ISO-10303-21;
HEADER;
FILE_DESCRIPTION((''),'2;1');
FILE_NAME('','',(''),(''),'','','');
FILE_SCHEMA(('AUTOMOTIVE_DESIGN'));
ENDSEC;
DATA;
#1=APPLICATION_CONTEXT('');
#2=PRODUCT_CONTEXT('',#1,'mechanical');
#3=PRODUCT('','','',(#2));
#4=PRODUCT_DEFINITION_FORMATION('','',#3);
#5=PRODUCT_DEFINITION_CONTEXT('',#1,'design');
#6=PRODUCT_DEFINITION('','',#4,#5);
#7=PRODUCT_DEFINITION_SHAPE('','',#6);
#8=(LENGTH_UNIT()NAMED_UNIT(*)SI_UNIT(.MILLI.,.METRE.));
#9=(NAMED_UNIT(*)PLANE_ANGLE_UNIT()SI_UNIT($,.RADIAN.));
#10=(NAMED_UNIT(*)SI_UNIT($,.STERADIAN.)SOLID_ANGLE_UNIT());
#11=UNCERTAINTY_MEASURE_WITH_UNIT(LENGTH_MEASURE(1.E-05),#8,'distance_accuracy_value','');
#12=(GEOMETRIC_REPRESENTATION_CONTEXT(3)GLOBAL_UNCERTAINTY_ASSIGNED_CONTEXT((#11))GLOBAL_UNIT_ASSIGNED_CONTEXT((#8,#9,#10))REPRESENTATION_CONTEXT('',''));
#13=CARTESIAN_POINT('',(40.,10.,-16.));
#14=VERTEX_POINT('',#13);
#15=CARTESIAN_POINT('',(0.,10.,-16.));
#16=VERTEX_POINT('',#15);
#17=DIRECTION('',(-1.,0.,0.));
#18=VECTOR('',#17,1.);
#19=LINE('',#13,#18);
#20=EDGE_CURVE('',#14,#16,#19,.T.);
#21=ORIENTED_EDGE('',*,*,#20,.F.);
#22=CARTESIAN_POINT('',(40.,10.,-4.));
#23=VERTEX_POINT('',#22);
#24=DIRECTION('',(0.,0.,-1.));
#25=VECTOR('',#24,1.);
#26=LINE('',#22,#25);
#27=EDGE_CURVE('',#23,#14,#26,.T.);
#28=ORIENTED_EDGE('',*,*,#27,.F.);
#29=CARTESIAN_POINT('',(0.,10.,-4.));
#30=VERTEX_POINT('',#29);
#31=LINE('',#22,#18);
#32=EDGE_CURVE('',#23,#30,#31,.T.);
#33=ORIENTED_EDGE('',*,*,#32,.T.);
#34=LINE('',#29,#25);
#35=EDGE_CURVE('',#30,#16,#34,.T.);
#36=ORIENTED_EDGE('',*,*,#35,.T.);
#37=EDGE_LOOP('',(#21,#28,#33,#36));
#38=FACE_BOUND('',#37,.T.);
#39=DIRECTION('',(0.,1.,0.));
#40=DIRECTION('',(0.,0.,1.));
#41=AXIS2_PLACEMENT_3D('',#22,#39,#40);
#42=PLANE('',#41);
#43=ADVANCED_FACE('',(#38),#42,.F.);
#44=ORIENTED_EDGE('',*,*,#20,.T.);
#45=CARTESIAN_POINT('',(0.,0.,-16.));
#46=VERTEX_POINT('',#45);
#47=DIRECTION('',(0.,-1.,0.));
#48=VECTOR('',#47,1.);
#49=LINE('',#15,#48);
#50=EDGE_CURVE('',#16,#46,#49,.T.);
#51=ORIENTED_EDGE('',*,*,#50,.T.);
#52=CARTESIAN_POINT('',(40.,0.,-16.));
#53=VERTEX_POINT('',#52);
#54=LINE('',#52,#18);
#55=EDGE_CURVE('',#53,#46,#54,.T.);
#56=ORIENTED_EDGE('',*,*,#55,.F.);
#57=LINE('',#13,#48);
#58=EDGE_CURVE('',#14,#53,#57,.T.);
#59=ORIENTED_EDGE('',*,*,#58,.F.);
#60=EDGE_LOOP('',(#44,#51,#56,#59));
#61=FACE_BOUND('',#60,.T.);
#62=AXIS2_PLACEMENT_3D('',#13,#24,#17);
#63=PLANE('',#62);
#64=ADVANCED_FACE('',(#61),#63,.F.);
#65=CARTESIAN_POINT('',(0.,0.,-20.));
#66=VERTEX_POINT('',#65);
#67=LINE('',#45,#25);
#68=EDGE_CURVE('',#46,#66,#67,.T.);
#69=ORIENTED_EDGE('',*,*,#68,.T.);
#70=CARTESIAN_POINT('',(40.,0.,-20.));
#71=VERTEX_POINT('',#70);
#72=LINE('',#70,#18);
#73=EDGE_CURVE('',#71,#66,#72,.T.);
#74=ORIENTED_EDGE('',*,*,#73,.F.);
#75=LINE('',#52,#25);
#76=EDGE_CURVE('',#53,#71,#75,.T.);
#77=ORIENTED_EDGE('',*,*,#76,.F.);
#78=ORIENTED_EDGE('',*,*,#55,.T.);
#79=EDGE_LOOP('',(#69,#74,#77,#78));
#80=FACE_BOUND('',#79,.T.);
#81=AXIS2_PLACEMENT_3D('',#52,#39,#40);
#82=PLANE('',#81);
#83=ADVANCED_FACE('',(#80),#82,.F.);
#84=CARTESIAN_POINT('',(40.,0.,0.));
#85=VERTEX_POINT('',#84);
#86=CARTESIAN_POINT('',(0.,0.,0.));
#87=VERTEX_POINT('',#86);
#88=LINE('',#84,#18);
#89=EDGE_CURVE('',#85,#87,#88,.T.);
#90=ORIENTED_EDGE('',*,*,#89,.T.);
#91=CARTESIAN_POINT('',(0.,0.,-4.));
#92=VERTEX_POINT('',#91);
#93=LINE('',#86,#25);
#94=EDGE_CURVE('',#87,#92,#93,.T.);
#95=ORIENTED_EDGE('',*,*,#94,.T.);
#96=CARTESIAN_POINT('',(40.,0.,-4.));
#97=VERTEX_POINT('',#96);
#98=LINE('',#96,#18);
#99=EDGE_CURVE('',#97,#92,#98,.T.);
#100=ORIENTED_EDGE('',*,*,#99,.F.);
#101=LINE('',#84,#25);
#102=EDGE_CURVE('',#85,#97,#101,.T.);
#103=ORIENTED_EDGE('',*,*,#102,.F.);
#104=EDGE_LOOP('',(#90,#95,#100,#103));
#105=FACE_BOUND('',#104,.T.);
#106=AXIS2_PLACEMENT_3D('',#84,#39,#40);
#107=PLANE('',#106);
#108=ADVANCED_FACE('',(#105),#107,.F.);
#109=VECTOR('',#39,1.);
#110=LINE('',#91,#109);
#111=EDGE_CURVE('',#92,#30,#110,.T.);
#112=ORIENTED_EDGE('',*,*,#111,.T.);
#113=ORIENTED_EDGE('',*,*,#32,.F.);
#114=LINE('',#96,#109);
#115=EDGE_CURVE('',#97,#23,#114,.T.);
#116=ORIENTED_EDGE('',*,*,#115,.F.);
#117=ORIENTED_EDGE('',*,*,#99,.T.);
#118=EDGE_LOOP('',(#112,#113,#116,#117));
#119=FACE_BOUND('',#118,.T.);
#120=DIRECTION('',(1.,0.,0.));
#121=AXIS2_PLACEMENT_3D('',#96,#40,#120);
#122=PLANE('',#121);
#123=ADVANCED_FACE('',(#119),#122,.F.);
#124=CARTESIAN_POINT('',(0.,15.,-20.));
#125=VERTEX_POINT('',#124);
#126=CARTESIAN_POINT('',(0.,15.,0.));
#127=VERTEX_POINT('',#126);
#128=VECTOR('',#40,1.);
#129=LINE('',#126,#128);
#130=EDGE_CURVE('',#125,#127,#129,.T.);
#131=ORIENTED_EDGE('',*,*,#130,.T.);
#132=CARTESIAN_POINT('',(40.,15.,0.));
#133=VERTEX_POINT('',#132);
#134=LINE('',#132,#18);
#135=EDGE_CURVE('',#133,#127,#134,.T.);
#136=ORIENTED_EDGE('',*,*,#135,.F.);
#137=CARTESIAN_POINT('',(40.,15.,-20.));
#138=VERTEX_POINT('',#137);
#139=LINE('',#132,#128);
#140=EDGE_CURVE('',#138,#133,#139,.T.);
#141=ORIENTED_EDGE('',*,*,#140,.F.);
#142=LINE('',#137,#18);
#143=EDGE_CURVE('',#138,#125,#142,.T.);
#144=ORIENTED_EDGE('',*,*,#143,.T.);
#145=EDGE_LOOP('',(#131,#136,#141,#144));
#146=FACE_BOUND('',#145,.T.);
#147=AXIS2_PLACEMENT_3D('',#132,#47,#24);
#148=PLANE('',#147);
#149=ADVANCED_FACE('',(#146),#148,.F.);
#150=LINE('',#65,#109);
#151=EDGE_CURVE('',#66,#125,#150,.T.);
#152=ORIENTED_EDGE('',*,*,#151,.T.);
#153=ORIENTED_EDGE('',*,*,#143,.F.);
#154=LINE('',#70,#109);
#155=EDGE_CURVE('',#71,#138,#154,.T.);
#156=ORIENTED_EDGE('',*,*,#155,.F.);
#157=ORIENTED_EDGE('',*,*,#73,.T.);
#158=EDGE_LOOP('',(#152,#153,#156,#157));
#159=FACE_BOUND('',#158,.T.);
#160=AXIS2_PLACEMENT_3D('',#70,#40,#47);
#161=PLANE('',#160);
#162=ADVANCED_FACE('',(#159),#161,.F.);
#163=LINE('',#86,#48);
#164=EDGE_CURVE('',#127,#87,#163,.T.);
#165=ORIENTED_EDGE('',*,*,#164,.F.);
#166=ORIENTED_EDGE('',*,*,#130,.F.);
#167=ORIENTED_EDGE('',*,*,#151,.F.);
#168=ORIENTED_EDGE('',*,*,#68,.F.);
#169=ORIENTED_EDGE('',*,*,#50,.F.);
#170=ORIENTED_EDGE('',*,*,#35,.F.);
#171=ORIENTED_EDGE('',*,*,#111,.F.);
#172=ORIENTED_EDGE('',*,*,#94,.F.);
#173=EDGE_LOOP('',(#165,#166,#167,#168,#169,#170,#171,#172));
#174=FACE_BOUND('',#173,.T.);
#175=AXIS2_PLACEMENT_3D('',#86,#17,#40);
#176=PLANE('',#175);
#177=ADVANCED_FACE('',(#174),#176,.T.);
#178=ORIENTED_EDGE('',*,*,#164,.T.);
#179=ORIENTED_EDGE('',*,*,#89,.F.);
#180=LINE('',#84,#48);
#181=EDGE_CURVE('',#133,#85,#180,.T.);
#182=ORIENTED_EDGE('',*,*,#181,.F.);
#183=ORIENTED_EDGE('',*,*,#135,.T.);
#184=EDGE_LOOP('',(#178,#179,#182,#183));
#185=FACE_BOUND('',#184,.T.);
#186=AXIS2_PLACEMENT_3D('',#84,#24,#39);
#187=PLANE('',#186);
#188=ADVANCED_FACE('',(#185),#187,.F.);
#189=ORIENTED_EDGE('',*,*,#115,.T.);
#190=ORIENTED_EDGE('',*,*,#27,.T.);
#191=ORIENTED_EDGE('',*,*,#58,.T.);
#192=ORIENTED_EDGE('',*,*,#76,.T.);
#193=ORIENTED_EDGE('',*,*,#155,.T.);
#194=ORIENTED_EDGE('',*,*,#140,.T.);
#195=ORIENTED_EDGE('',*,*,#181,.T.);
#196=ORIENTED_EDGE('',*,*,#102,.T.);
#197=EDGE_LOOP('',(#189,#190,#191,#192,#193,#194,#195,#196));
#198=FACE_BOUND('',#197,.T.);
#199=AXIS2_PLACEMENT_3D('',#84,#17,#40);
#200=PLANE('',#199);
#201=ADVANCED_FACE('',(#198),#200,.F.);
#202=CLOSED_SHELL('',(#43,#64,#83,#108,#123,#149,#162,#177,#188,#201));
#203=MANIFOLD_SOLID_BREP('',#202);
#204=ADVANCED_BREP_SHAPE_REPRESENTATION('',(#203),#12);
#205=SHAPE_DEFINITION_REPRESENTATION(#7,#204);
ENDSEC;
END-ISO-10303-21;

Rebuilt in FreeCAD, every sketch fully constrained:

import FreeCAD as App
import Part
import Sketcher


def add_polygon(sketch, points):
    """Adds a closed chain of lines whose ends are joined by coincident constraints."""
    first, n = sketch.GeometryCount, len(points)
    for a, b in zip(points, points[1:] + points[:1]):
        sketch.addGeometry(Part.LineSegment(App.Vector(*a, 0), App.Vector(*b, 0)), False)
    for i in range(n):
        sketch.addConstraint(Sketcher.Constraint("Coincident", first + i, 2, first + (i + 1) % n, 1))

doc = App.newDocument("Part")
body = doc.addObject("PartDesign::Body", "Body")

sketch1 = body.newObject("Sketcher::SketchObject", "Sketch")
sketch1.AttachmentSupport = (doc.getObject("YZ_Plane"), [""])
sketch1.MapMode = "FlatFace"
add_polygon(sketch1, [(0, -4), (10, -4), (10, -16), (0, -16), (0, -20), (15, -20), (15, 0), (0, 0)])
sketch1.addConstraint(Sketcher.Constraint("Horizontal", 0))
sketch1.addConstraint(Sketcher.Constraint("Vertical", 1))
sketch1.addConstraint(Sketcher.Constraint("Horizontal", 2))
sketch1.addConstraint(Sketcher.Constraint("Vertical", 3))
sketch1.addConstraint(Sketcher.Constraint("Horizontal", 4))
sketch1.addConstraint(Sketcher.Constraint("Vertical", 5))
sketch1.addConstraint(Sketcher.Constraint("Horizontal", 6))
sketch1.addConstraint(Sketcher.Constraint("Vertical", 7))
sketch1.addConstraint(Sketcher.Constraint("Coincident", 6, 2, -1, 1))
sketch1.addConstraint(Sketcher.Constraint("PointOnObject", 2, 2, -2))
sketch1.addConstraint(Sketcher.Constraint("Equal", 3, 7))
sketch1.addConstraint(Sketcher.Constraint("DistanceX", 0, 1, 0, 2, 10.0))
sketch1.addConstraint(Sketcher.Constraint("DistanceX", 4, 1, 4, 2, 15.0))
sketch1.addConstraint(Sketcher.Constraint("DistanceY", 1, 2, 1, 1, 12.0))
sketch1.addConstraint(Sketcher.Constraint("DistanceY", 3, 2, 3, 1, 4.0))
pad1 = body.newObject("PartDesign::Pad", "Pad")
pad1.Profile = sketch1
pad1.Length = 40

doc.recompute()
